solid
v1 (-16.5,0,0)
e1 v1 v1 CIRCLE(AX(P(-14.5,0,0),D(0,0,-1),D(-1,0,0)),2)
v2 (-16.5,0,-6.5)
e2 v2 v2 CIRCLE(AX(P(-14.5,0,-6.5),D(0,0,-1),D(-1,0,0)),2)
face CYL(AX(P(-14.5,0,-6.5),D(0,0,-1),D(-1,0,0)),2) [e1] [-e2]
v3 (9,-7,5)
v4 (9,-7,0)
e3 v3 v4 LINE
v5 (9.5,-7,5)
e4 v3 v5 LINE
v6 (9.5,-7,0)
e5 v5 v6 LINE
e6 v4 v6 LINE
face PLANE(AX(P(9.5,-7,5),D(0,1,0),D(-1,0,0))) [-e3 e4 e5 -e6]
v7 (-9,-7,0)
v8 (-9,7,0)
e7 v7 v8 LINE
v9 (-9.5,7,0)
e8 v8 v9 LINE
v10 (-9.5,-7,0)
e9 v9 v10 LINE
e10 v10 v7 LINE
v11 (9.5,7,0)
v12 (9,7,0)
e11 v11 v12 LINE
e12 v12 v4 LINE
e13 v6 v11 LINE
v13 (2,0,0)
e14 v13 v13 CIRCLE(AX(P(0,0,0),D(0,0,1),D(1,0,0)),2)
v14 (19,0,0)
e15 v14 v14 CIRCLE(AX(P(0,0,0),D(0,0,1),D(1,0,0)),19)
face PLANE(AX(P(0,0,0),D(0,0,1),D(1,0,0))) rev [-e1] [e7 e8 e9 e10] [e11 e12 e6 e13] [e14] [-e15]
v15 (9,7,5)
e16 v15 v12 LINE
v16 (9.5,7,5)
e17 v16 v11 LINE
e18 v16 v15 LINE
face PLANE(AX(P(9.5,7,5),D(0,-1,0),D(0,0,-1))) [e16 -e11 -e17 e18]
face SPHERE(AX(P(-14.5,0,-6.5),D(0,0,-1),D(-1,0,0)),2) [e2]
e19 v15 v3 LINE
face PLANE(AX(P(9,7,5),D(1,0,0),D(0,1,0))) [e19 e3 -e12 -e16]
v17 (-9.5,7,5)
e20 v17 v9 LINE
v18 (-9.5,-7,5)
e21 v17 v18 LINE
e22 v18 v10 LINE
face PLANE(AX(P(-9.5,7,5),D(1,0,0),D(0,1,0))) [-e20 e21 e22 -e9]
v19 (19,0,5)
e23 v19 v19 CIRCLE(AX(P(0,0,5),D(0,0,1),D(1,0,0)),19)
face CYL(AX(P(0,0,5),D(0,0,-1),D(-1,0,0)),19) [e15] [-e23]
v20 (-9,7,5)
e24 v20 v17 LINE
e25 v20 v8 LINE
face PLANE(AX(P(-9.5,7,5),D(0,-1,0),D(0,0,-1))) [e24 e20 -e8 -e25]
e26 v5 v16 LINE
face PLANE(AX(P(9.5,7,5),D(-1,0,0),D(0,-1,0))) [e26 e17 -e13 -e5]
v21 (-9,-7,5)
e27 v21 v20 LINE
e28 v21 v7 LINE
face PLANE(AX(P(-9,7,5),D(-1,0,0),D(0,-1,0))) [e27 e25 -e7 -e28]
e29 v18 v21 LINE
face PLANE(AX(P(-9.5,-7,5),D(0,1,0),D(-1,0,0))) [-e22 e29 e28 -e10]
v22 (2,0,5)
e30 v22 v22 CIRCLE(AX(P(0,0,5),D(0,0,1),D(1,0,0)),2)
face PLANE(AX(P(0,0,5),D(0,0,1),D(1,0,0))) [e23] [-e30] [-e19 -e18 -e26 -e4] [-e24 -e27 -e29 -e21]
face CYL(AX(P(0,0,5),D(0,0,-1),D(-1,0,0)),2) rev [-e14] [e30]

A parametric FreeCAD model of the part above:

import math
import FreeCAD as App
import Part
import Sketcher
from FreeCAD import Vector


def add_polygon(sketch, points):
    """Adds a closed chain of lines whose ends are joined by coincident constraints."""
    first, n = sketch.GeometryCount, len(points)
    for a, b in zip(points, points[1:] + points[:1]):
        sketch.addGeometry(Part.LineSegment(App.Vector(*a, 0), App.Vector(*b, 0)), False)
    for i in range(n):
        sketch.addConstraint(Sketcher.Constraint("Coincident", first + i, 2, first + (i + 1) % n, 1))

doc = App.newDocument("Part")
body = doc.addObject("PartDesign::Body", "Body")

sketch1 = doc.addObject("Sketcher::SketchObject", "Sketch")
body.addObject(sketch1)
sketch1.AttachmentSupport = (doc.XY_Plane, [""])
sketch1.MapMode = "FlatFace"
sketch1.addGeometry(Part.Circle(Vector(0, 0, 0), Vector(0, 0, 1), 19), False)
add_polygon(sketch1, [(-9, -7), (-9.5, -7), (-9.5, 7), (-9, 7)])
sketch1.addGeometry(Part.Circle(Vector(0, 0, 0), Vector(0, 0, 1), 2), False)
add_polygon(sketch1, [(9.5, -7), (9, -7), (9, 7), (9.5, 7)])
sketch1.addConstraint([
    Sketcher.Constraint("Horizontal", 1),
    Sketcher.Constraint("Vertical", 2),
    Sketcher.Constraint("Horizontal", 3),
    Sketcher.Constraint("Vertical", 4),
    Sketcher.Constraint("Horizontal", 6),
    Sketcher.Constraint("Vertical", 7),
    Sketcher.Constraint("Horizontal", 8),
    Sketcher.Constraint("Vertical", 9),
    Sketcher.Constraint("Coincident", 0, 3, -1, 1),
    Sketcher.Constraint("Coincident", 5, 3, -1, 1),
    Sketcher.Constraint("Symmetric", 3, 2, 6, 2, -1, 1),
    Sketcher.Constraint("Symmetric", 1, 2, 8, 2, -1, 1),
    Sketcher.Constraint("Horizontal", 4, 2, 6, 2),
    Sketcher.Constraint("Diameter", 0, 38.0),
    Sketcher.Constraint("Diameter", 5, 4.0),
    Sketcher.Constraint("DistanceY", 2, 1, 2, 2, 14.0),
    Sketcher.Constraint("DistanceX", 1, 2, 1, 1, 0.5),
    Sketcher.Constraint("DistanceX", 3, 2, -1, 1, 9.0),
])
pad1 = doc.addObject("PartDesign::Pad", "Pad")
body.addObject(pad1)
pad1.Profile = sketch1
pad1.Length = 5

sketch2 = doc.addObject("Sketcher::SketchObject", "Sketch001")
body.addObject(sketch2)
sketch2.AttachmentSupport = (doc.XZ_Plane, [""])
sketch2.MapMode = "FlatFace"
sketch2.addGeometry([
    Part.LineSegment(Vector(-16.5, -6.5, 0), Vector(-16.5, 0, 0)),
    Part.LineSegment(Vector(-16.5, 0, 0), Vector(-14.5, 0, 0)),
    Part.LineSegment(Vector(-14.5, 0, 0), Vector(-14.5, -8.5, 0)),
    Part.ArcOfCircle(Part.Circle(Vector(-14.5, -6.5, 0), Vector(0, 0, 1), 2), math.radians(-180), math.radians(-90)),
], False)
sketch2.addGeometry(Part.LineSegment(Vector(-14.5, -8.5, 0), Vector(-14.5, 0, 0)), True)
sketch2.addConstraint([
    Sketcher.Constraint("Coincident", 0, 2, 1, 1),
    Sketcher.Constraint("Coincident", 1, 2, 2, 1),
    Sketcher.Constraint("Coincident", 2, 2, 3, 2),
    Sketcher.Constraint("Tangent", 3, 1, 0, 1),
    Sketcher.Constraint("Vertical", 0),
    Sketcher.Constraint("Horizontal", 1),
    Sketcher.Constraint("Vertical", 2),
    Sketcher.Constraint("Vertical", 4),
    Sketcher.Constraint("Coincident", 4, 1, 2, 2),
    Sketcher.Constraint("PointOnObject", 0, 2, -1),
    Sketcher.Constraint("PointOnObject", 4, 2, -1),
    Sketcher.Constraint("Vertical", 3, 3, 1, 2),
    Sketcher.Constraint("Radius", 3, 2.0),
    Sketcher.Constraint("DistanceY", 0, 1, 0, 2, 6.5),
    Sketcher.Constraint("DistanceX", 3, 3, -1, 1, 14.5),
])
revolution = doc.addObject("PartDesign::Revolution", "Revolution")
body.addObject(revolution)
revolution.Profile = sketch2
revolution.ReferenceAxis = (sketch2, ["Axis0"])
revolution.Angle = 360

doc.recompute()
